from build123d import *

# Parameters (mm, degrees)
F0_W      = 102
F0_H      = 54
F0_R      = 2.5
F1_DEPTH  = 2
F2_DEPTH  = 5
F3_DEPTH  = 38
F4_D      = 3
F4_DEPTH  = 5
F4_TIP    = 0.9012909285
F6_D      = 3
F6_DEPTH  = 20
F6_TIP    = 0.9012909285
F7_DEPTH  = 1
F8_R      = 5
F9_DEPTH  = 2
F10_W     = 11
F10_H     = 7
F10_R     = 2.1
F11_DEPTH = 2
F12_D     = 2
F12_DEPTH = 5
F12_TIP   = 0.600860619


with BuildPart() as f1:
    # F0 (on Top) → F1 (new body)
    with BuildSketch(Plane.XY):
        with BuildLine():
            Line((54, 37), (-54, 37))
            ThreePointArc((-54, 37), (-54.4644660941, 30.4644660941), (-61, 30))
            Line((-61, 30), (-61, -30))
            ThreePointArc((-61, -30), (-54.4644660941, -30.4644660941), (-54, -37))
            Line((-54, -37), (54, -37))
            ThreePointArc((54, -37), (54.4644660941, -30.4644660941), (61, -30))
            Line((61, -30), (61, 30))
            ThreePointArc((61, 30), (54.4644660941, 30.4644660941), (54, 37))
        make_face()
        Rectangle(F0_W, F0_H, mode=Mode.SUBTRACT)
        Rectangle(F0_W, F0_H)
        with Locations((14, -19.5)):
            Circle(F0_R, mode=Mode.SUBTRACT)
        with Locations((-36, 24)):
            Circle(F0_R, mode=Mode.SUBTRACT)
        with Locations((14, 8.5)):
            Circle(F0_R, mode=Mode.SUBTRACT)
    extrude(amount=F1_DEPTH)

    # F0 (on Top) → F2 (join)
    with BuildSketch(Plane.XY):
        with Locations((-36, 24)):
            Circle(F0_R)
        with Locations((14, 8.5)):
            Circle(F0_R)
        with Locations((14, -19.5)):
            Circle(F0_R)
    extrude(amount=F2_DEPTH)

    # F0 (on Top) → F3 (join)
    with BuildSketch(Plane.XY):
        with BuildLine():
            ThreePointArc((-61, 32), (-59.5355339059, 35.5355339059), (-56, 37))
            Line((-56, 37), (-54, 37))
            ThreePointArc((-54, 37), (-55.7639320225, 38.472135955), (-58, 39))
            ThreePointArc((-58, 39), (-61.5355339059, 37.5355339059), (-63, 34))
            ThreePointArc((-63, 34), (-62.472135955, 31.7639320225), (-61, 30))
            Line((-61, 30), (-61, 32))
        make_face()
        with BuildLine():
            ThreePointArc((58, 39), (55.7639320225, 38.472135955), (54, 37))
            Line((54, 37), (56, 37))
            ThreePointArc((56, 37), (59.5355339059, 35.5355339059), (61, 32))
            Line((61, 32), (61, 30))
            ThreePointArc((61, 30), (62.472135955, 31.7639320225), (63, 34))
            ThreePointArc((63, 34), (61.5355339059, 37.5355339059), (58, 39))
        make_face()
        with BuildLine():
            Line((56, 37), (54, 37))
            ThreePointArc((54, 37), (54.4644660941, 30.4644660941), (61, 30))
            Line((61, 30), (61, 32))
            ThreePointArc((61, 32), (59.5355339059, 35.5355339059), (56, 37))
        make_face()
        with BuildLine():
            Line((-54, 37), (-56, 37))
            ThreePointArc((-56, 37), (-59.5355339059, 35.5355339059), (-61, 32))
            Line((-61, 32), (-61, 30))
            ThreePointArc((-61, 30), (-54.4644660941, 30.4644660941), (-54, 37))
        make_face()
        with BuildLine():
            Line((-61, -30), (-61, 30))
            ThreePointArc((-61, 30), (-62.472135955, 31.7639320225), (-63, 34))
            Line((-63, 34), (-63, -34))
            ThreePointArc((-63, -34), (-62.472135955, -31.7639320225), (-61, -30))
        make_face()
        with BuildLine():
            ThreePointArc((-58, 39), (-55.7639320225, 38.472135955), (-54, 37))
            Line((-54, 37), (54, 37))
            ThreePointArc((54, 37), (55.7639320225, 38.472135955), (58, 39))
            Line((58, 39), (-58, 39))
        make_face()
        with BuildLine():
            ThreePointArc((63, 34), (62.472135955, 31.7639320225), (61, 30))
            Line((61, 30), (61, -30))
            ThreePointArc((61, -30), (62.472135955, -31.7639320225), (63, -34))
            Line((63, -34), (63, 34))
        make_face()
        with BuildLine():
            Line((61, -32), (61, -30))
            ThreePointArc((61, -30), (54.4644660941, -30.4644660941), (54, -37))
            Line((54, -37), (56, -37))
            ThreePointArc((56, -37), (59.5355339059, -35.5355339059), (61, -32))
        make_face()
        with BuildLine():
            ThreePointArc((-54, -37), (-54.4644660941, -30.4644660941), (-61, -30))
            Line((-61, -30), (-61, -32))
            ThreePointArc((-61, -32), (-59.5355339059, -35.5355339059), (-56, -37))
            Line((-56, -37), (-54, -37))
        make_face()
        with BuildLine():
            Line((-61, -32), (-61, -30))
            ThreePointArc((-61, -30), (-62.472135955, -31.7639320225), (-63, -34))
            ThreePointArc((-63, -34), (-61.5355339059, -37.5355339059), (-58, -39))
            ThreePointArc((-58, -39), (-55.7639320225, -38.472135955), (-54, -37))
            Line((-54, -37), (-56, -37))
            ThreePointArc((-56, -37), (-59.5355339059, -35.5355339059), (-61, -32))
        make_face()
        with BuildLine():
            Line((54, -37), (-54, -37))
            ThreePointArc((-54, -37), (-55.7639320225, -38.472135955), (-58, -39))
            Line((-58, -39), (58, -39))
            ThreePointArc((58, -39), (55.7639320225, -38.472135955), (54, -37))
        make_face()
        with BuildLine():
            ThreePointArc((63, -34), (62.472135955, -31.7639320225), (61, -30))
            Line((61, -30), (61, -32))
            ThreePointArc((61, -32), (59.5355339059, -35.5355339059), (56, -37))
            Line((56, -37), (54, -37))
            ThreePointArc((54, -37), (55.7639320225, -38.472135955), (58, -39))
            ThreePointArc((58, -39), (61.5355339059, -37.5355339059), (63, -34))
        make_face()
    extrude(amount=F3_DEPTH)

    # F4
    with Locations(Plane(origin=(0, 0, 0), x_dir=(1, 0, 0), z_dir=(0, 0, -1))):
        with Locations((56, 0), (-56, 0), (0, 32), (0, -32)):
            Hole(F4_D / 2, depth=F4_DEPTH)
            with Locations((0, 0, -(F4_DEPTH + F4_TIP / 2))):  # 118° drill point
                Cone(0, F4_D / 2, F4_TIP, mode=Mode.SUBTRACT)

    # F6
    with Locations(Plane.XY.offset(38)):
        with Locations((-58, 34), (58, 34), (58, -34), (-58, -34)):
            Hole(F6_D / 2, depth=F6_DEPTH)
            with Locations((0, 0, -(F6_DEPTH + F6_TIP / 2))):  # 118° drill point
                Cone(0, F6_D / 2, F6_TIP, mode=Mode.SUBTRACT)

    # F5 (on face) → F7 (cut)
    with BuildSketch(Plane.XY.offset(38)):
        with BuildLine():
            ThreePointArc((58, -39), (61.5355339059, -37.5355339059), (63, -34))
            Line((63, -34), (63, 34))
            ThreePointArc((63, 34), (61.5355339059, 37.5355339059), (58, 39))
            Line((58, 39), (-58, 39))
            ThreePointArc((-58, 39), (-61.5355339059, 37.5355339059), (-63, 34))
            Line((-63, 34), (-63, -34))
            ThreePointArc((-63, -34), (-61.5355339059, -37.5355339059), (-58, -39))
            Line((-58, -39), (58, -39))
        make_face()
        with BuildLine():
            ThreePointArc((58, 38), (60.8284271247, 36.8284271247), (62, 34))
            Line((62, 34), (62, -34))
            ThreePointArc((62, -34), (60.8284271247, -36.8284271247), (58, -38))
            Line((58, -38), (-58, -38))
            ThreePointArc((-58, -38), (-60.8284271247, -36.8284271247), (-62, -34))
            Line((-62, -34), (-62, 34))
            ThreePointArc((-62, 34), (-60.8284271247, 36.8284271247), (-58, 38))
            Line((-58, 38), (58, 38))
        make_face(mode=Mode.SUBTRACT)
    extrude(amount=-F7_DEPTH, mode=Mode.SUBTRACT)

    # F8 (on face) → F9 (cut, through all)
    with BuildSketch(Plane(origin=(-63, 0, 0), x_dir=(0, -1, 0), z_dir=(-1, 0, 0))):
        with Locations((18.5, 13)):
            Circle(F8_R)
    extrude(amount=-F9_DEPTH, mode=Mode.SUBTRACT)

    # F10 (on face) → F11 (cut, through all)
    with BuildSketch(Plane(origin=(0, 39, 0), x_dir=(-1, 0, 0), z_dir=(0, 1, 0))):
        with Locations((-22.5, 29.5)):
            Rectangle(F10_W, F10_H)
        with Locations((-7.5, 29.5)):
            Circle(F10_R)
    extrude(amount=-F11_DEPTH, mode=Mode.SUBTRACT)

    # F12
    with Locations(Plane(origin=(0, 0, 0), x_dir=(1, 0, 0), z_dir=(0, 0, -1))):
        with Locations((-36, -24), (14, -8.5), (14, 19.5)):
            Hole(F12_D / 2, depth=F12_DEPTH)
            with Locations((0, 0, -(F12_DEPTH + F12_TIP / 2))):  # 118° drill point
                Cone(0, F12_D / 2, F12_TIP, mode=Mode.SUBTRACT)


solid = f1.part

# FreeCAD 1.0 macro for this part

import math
import FreeCAD as App
import Part
import Sketcher
Q = App.Units.Quantity

doc = App.newDocument("Part")
body = doc.addObject("PartDesign::Body", "Body")

sketch1 = doc.addObject("Sketcher::SketchObject", "Sketch")
body.addObject(sketch1)
sketch1.AttachmentSupport = (doc.XY_Plane, [""])
sketch1.MapMode = "FlatFace"
sketch1.addGeometry([
    Part.LineSegment(App.Vector(54, 37, 0), App.Vector(-54, 37, 0)),
    Part.ArcOfCircle(Part.Circle(App.Vector(-58, 34, 0), App.Vector(0, 0, 1), 5), math.radians(-127), math.radians(37)),
    Part.LineSegment(App.Vector(-61, 30, 0), App.Vector(-61, -30, 0)),
    Part.ArcOfCircle(Part.Circle(App.Vector(-58, -34, 0), App.Vector(0, 0, 1), 5), math.radians(-37), math.radians(127)),
    Part.LineSegment(App.Vector(-54, -37, 0), App.Vector(54, -37, 0)),
    Part.ArcOfCircle(Part.Circle(App.Vector(58, -34, 0), App.Vector(0, 0, 1), 5), math.radians(53), math.radians(217)),
    Part.LineSegment(App.Vector(61, -30, 0), App.Vector(61, 30, 0)),
    Part.ArcOfCircle(Part.Circle(App.Vector(58, 34, 0), App.Vector(0, 0, 1), 5), math.radians(143), math.radians(307)),
    Part.Circle(App.Vector(14, -19.5, 0), App.Vector(0, 0, 1), 2.5),
    Part.Circle(App.Vector(-36, 24, 0), App.Vector(0, 0, 1), 2.5),
    Part.Circle(App.Vector(14, 8.5, 0), App.Vector(0, 0, 1), 2.5),
], False)
sketch1.addConstraint([
    Sketcher.Constraint("Coincident", 0, 2, 1, 2),
    Sketcher.Constraint("Coincident", 1, 1, 2, 1),
    Sketcher.Constraint("Coincident", 2, 2, 3, 2),
    Sketcher.Constraint("Coincident", 3, 1, 4, 1),
    Sketcher.Constraint("Coincident", 4, 2, 5, 2),
    Sketcher.Constraint("Coincident", 5, 1, 6, 1),
    Sketcher.Constraint("Coincident", 6, 2, 7, 2),
    Sketcher.Constraint("Coincident", 7, 1, 0, 1),
    Sketcher.Constraint("Horizontal", 0),
    Sketcher.Constraint("Vertical", 2),
    Sketcher.Constraint("Horizontal", 4),
    Sketcher.Constraint("Vertical", 6),
    Sketcher.Constraint("Equal", 1, 3),
    Sketcher.Constraint("Equal", 3, 5),
    Sketcher.Constraint("Equal", 5, 7),
    Sketcher.Constraint("Equal", 8, 9),
    Sketcher.Constraint("Equal", 9, 10),
    Sketcher.Constraint("Symmetric", 1, 3, 5, 3, -1, 1),
    Sketcher.Constraint("Symmetric", 3, 3, 7, 3, -1, 1),
    Sketcher.Constraint("Symmetric", 3, 3, 5, 3, -2),
    Sketcher.Constraint("Horizontal", 2, 2, 5, 1),
    Sketcher.Constraint("Vertical", 8, 3, 10, 3),
    Sketcher.Constraint("Vertical", 0, 2, 3, 1),
    Sketcher.Constraint("Diameter", 8, Q("5 mm")),
    Sketcher.Constraint("Radius", 1, Q("5 mm")),
    Sketcher.Constraint("DistanceX", 0, 2, 0, 1, Q("108 mm")),
    Sketcher.Constraint("DistanceY", 2, 2, 2, 1, Q("60 mm")),
    Sketcher.Constraint("DistanceX", 1, 3, -1, 1, Q("58 mm")),
    Sketcher.Constraint("DistanceY", -1, 1, 1, 3, Q("34 mm")),
    Sketcher.Constraint("DistanceX", -1, 1, 8, 3, Q("14 mm")),
    Sketcher.Constraint("DistanceX", 9, 3, -1, 1, Q("36 mm")),
    Sketcher.Constraint("DistanceY", -1, 1, 9, 3, Q("24 mm")),
    Sketcher.Constraint("DistanceY", 8, 3, 10, 3, Q("28 mm")),
    Sketcher.Constraint("DistanceY", 8, 3, -1, 1, Q("19.5 mm")),
])
pad1 = doc.addObject("PartDesign::Pad", "Pad")
body.addObject(pad1)
pad1.Profile = sketch1
pad1.Length = 2

sketch2 = doc.addObject("Sketcher::SketchObject", "Sketch001")
body.addObject(sketch2)
sketch2.AttachmentSupport = (doc.XY_Plane, [""])
sketch2.MapMode = "FlatFace"
sketch2.addGeometry([
    Part.Circle(App.Vector(-36, 24, 0), App.Vector(0, 0, 1), 2.5),
    Part.Circle(App.Vector(14, 8.5, 0), App.Vector(0, 0, 1), 2.5),
    Part.Circle(App.Vector(14, -19.5, 0), App.Vector(0, 0, 1), 2.5),
], False)
sketch2.addConstraint([
    Sketcher.Constraint("Equal", 0, 1),
    Sketcher.Constraint("Equal", 1, 2),
    Sketcher.Constraint("Vertical", 1, 3, 2, 3),
    Sketcher.Constraint("Diameter", 0, Q("5 mm")),
    Sketcher.Constraint("DistanceX", 0, 3, -1, 1, Q("36 mm")),
    Sketcher.Constraint("DistanceY", -1, 1, 0, 3, Q("24 mm")),
    Sketcher.Constraint("DistanceX", -1, 1, 1, 3, Q("14 mm")),
    Sketcher.Constraint("DistanceY", 2, 3, 1, 3, Q("28 mm")),
    Sketcher.Constraint("DistanceY", -1, 1, 1, 3, Q("8.5 mm")),
])
pad2 = doc.addObject("PartDesign::Pad", "Pad001")
body.addObject(pad2)
pad2.Profile = sketch2
pad2.Length = 5

sketch3 = doc.addObject("Sketcher::SketchObject", "Sketch002")
body.addObject(sketch3)
sketch3.AttachmentSupport = (doc.XY_Plane, [""])
sketch3.MapMode = "FlatFace"
sketch3.addGeometry([
    Part.ArcOfCircle(Part.Circle(App.Vector(-58, 34, 0), App.Vector(0, 0, 1), 5), math.radians(90), math.radians(180)),
    Part.LineSegment(App.Vector(-63, 34, 0), App.Vector(-63, -34, 0)),
    Part.ArcOfCircle(Part.Circle(App.Vector(-58, -34, 0), App.Vector(0, 0, 1), 5), math.radians(180), math.radians(270)),
    Part.LineSegment(App.Vector(-58, -39, 0), App.Vector(58, -39, 0)),
    Part.ArcOfCircle(Part.Circle(App.Vector(58, -34, 0), App.Vector(0, 0, 1), 5), math.radians(-90), math.radians(0)),
    Part.LineSegment(App.Vector(63, -34, 0), App.Vector(63, 34, 0)),
    Part.ArcOfCircle(Part.Circle(App.Vector(58, 34, 0), App.Vector(0, 0, 1), 5), math.radians(0), math.radians(90)),
    Part.LineSegment(App.Vector(58, 39, 0), App.Vector(-58, 39, 0)),
    Part.LineSegment(App.Vector(54, -37, 0), App.Vector(-54, -37, 0)),
    Part.ArcOfCircle(Part.Circle(App.Vector(-58, -34, 0), App.Vector(0, 0, 1), 5), math.radians(-37), math.radians(127)),
    Part.LineSegment(App.Vector(-61, -30, 0), App.Vector(-61, 30, 0)),
    Part.ArcOfCircle(Part.Circle(App.Vector(-58, 34, 0), App.Vector(0, 0, 1), 5), math.radians(-127), math.radians(37)),
    Part.LineSegment(App.Vector(-54, 37, 0), App.Vector(54, 37, 0)),
    Part.ArcOfCircle(Part.Circle(App.Vector(58, 34, 0), App.Vector(0, 0, 1), 5), math.radians(143), math.radians(307)),
    Part.LineSegment(App.Vector(61, 30, 0), App.Vector(61, -30, 0)),
    Part.ArcOfCircle(Part.Circle(App.Vector(58, -34, 0), App.Vector(0, 0, 1), 5), math.radians(53), math.radians(217)),
], False)
sketch3.addConstraint([
    Sketcher.Constraint("Tangent", 0, 2, 1, 1),
    Sketcher.Constraint("Tangent", 1, 2, 2, 1),
    Sketcher.Constraint("Tangent", 2, 2, 3, 1),
    Sketcher.Constraint("Tangent", 3, 2, 4, 1),
    Sketcher.Constraint("Tangent", 4, 2, 5, 1),
    Sketcher.Constraint("Tangent", 5, 2, 6, 1),
    Sketcher.Constraint("Tangent", 6, 2, 7, 1),
    Sketcher.Constraint("Tangent", 7, 2, 0, 1),
    Sketcher.Constraint("Coincident", 8, 2, 9, 1),
    Sketcher.Constraint("Coincident", 9, 2, 10, 1),
    Sketcher.Constraint("Coincident", 10, 2, 11, 1),
    Sketcher.Constraint("Coincident", 11, 2, 12, 1),
    Sketcher.Constraint("Coincident", 12, 2, 13, 1),
    Sketcher.Constraint("Coincident", 13, 2, 14, 1),
    Sketcher.Constraint("Coincident", 14, 2, 15, 1),
    Sketcher.Constraint("Coincident", 15, 2, 8, 1),
    Sketcher.Constraint("Vertical", 1),
    Sketcher.Constraint("Horizontal", 3),
    Sketcher.Constraint("Vertical", 5),
    Sketcher.Constraint("Horizontal", 7),
    Sketcher.Constraint("Horizontal", 8),
    Sketcher.Constraint("Vertical", 10),
    Sketcher.Constraint("Horizontal", 12),
    Sketcher.Constraint("Vertical", 14),
    Sketcher.Constraint("Coincident", 9, 3, 2, 3),
    Sketcher.Constraint("Coincident", 11, 3, 0, 3),
    Sketcher.Constraint("Coincident", 13, 3, 6, 3),
    Sketcher.Constraint("Coincident", 15, 3, 4, 3),
    Sketcher.Constraint("Equal", 0, 2),
    Sketcher.Constraint("Equal", 2, 4),
    Sketcher.Constraint("Equal", 4, 6),
    Sketcher.Constraint("Equal", 6, 9),
    Sketcher.Constraint("Equal", 9, 11),
    Sketcher.Constraint("Equal", 11, 13),
    Sketcher.Constraint("Equal", 13, 15),
    Sketcher.Constraint("Symmetric", 0, 3, 4, 3, -1, 1),
    Sketcher.Constraint("Horizontal", 10, 2, 13, 2),
    Sketcher.Constraint("Vertical", 8, 2, 11, 2),
    Sketcher.Constraint("Radius", 0, Q("5 mm")),
    Sketcher.Constraint("DistanceX", 3, 1, 3, 2, Q("116 mm")),
    Sketcher.Constraint("DistanceX", 8, 2, 8, 1, Q("108 mm")),
    Sketcher.Constraint("DistanceY", 1, 2, 1, 1, Q("68 mm")),
    Sketcher.Constraint("DistanceY", 10, 1, 10, 2, Q("60 mm")),
])
pad3 = doc.addObject("PartDesign::Pad", "Pad002")
body.addObject(pad3)
pad3.Profile = sketch3
pad3.Length = 38

sketch4 = doc.addObject("Sketcher::SketchObject", "Sketch003")
body.addObject(sketch4)
sketch4.AttachmentSupport = (doc.XY_Plane, [""])
sketch4.MapMode = "FlatFace"
sketch4.addGeometry([
    Part.Circle(App.Vector(56, 0, 0), App.Vector(0, 0, 1), 1.5),
    Part.Circle(App.Vector(-56, 0, 0), App.Vector(0, 0, 1), 1.5),
    Part.Circle(App.Vector(0, -32, 0), App.Vector(0, 0, 1), 1.5),
    Part.Circle(App.Vector(0, 32, 0), App.Vector(0, 0, 1), 1.5),
], False)
sketch4.addConstraint([
    Sketcher.Constraint("Equal", 0, 1),
    Sketcher.Constraint("Equal", 1, 2),
    Sketcher.Constraint("Equal", 2, 3),
    Sketcher.Constraint("Symmetric", 0, 3, 1, 3, -1, 1),
    Sketcher.Constraint("Symmetric", 2, 3, 3, 3, -1, 1),
    Sketcher.Constraint("PointOnObject", 0, 3, -1),
    Sketcher.Constraint("PointOnObject", 2, 3, -2),
    Sketcher.Constraint("Diameter", 0, Q("3 mm")),
    Sketcher.Constraint("DistanceX", -1, 1, 0, 3, Q("56 mm")),
    Sketcher.Constraint("DistanceY", 2, 3, -1, 1, Q("32 mm")),
])
doc.recompute()
hole = doc.addObject("PartDesign::Hole", "Hole")
body.addObject(hole)
hole.Profile = sketch4
hole.ThreadType = "None"
hole.Diameter = 3
hole.DepthType = "Dimension"
hole.Depth = 5
hole.DrillPoint = "Angled"
hole.DrillPointAngle = 118
hole.Reversed = True

sketch5 = doc.addObject("Sketcher::SketchObject", "Sketch004")
body.addObject(sketch5)
sketch5.AttachmentSupport = (doc.XY_Plane, [""])
sketch5.MapMode = "FlatFace"
sketch5.AttachmentOffset = App.Placement(App.Vector(0, 0, 38), App.Rotation())
sketch5.addGeometry([
    Part.Circle(App.Vector(-58, 34, 0), App.Vector(0, 0, 1), 1.5),
    Part.Circle(App.Vector(58, 34, 0), App.Vector(0, 0, 1), 1.5),
    Part.Circle(App.Vector(58, -34, 0), App.Vector(0, 0, 1), 1.5),
    Part.Circle(App.Vector(-58, -34, 0), App.Vector(0, 0, 1), 1.5),
], False)
sketch5.addConstraint([
    Sketcher.Constraint("Equal", 0, 1),
    Sketcher.Constraint("Equal", 1, 2),
    Sketcher.Constraint("Equal", 2, 3),
    Sketcher.Constraint("Symmetric", 0, 3, 2, 3, -1, 1),
    Sketcher.Constraint("Symmetric", 1, 3, 3, 3, -1, 1),
    Sketcher.Constraint("Symmetric", 0, 3, 1, 3, -2),
    Sketcher.Constraint("Diameter", 0, Q("3 mm")),
    Sketcher.Constraint("DistanceX", 0, 3, -1, 1, Q("58 mm")),
    Sketcher.Constraint("DistanceY", -1, 1, 0, 3, Q("34 mm")),
])
doc.recompute()
hole2 = doc.addObject("PartDesign::Hole", "Hole001")
body.addObject(hole2)
hole2.Profile = sketch5
hole2.ThreadType = "None"
hole2.Diameter = 3
hole2.DepthType = "Dimension"
hole2.Depth = 20
hole2.DrillPoint = "Angled"
hole2.DrillPointAngle = 118

sketch6 = doc.addObject("Sketcher::SketchObject", "Sketch005")
body.addObject(sketch6)
sketch6.AttachmentSupport = (doc.XY_Plane, [""])
sketch6.MapMode = "FlatFace"
sketch6.AttachmentOffset = App.Placement(App.Vector(0, 0, 38), App.Rotation())
sketch6.addGeometry([
    Part.ArcOfCircle(Part.Circle(App.Vector(58, -34, 0), App.Vector(0, 0, 1), 5), math.radians(-90), math.radians(0)),
    Part.LineSegment(App.Vector(63, -34, 0), App.Vector(63, 34, 0)),
    Part.ArcOfCircle(Part.Circle(App.Vector(58, 34, 0), App.Vector(0, 0, 1), 5), math.radians(0), math.radians(90)),
    Part.LineSegment(App.Vector(58, 39, 0), App.Vector(-58, 39, 0)),
    Part.ArcOfCircle(Part.Circle(App.Vector(-58, 34, 0), App.Vector(0, 0, 1), 5), math.radians(90), math.radians(180)),
    Part.LineSegment(App.Vector(-63, 34, 0), App.Vector(-63, -34, 0)),
    Part.ArcOfCircle(Part.Circle(App.Vector(-58, -34, 0), App.Vector(0, 0, 1), 5), math.radians(180), math.radians(270)),
    Part.LineSegment(App.Vector(-58, -39, 0), App.Vector(58, -39, 0)),
    Part.LineSegment(App.Vector(-58, 38, 0), App.Vector(58, 38, 0)),
    Part.ArcOfCircle(Part.Circle(App.Vector(58, 34, 0), App.Vector(0, 0, 1), 4), math.radians(0), math.radians(90)),
    Part.LineSegment(App.Vector(62, 34, 0), App.Vector(62, -34, 0)),
    Part.ArcOfCircle(Part.Circle(App.Vector(58, -34, 0), App.Vector(0, 0, 1), 4), math.radians(-90), math.radians(0)),
    Part.LineSegment(App.Vector(58, -38, 0), App.Vector(-58, -38, 0)),
    Part.ArcOfCircle(Part.Circle(App.Vector(-58, -34, 0), App.Vector(0, 0, 1), 4), math.radians(180), math.radians(270)),
    Part.LineSegment(App.Vector(-62, -34, 0), App.Vector(-62, 34, 0)),
    Part.ArcOfCircle(Part.Circle(App.Vector(-58, 34, 0), App.Vector(0, 0, 1), 4), math.radians(90), math.radians(180)),
], False)
sketch6.addConstraint([
    Sketcher.Constraint("Tangent", 0, 2, 1, 1),
    Sketcher.Constraint("Tangent", 1, 2, 2, 1),
    Sketcher.Constraint("Tangent", 2, 2, 3, 1),
    Sketcher.Constraint("Tangent", 3, 2, 4, 1),
    Sketcher.Constraint("Tangent", 4, 2, 5, 1),
    Sketcher.Constraint("Tangent", 5, 2, 6, 1),
    Sketcher.Constraint("Tangent", 6, 2, 7, 1),
    Sketcher.Constraint("Tangent", 7, 2, 0, 1),
    Sketcher.Constraint("Tangent", 8, 2, 9, 2),
    Sketcher.Constraint("Tangent", 9, 1, 10, 1),
    Sketcher.Constraint("Tangent", 10, 2, 11, 2),
    Sketcher.Constraint("Tangent", 11, 1, 12, 1),
    Sketcher.Constraint("Tangent", 12, 2, 13, 2),
    Sketcher.Constraint("Tangent", 13, 1, 14, 1),
    Sketcher.Constraint("Tangent", 14, 2, 15, 2),
    Sketcher.Constraint("Tangent", 15, 1, 8, 1),
    Sketcher.Constraint("Vertical", 1),
    Sketcher.Constraint("Horizontal", 3),
    Sketcher.Constraint("Vertical", 5),
    Sketcher.Constraint("Horizontal", 7),
    Sketcher.Constraint("Horizontal", 8),
    Sketcher.Constraint("Vertical", 10),
    Sketcher.Constraint("Horizontal", 12),
    Sketcher.Constraint("Vertical", 14),
    Sketcher.Constraint("Coincident", 9, 3, 2, 3),
    Sketcher.Constraint("Coincident", 11, 3, 0, 3),
    Sketcher.Constraint("Coincident", 13, 3, 6, 3),
    Sketcher.Constraint("Equal", 0, 2),
    Sketcher.Constraint("Equal", 2, 4),
    Sketcher.Constraint("Equal", 4, 6),
    Sketcher.Constraint("Equal", 13, 15),
    Sketcher.Constraint("Symmetric", 0, 3, 4, 3, -1, 1),
    Sketcher.Constraint("Radius", 0, Q("5 mm")),
    Sketcher.Constraint("Radius", 9, Q("4 mm")),
    Sketcher.Constraint("DistanceX", 3, 2, 3, 1, Q("116 mm")),
    Sketcher.Constraint("DistanceY", 1, 1, 1, 2, Q("68 mm")),
])
pocket1 = doc.addObject("PartDesign::Pocket", "Pocket")
body.addObject(pocket1)
pocket1.Profile = sketch6
pocket1.Length = 1

sketch7 = doc.addObject("Sketcher::SketchObject", "Sketch006")
body.addObject(sketch7)
sketch7.AttachmentSupport = (doc.YZ_Plane, [""])
sketch7.MapMode = "FlatFace"
sketch7.AttachmentOffset = App.Placement(App.Vector(0, 0, -63), App.Rotation())
sketch7.addGeometry(Part.Circle(App.Vector(-18, 13, 0), App.Vector(0, 0, 1), 5), False)
sketch7.addConstraint([
    Sketcher.Constraint("Diameter", 0, Q("10 mm")),
    Sketcher.Constraint("DistanceY", -1, 1, 0, 3, Q("13 mm")),
    Sketcher.Constraint("DistanceX", 0, 3, -1, 1, Q("18.5 mm")),
])
pocket2 = doc.addObject("PartDesign::Pocket", "Pocket001")
body.addObject(pocket2)
pocket2.Profile = sketch7
pocket2.Length = 2
pocket2.Reversed = True

sketch8 = doc.addObject("Sketcher::SketchObject", "Sketch007")
body.addObject(sketch8)
sketch8.AttachmentSupport = (doc.XZ_Plane, [""])
sketch8.MapMode = "FlatFace"
sketch8.AttachmentOffset = App.Placement(App.Vector(0, 0, -39), App.Rotation())
sketch8.addGeometry([
    Part.LineSegment(App.Vector(28, 33, 0), App.Vector(28, 26, 0)),
    Part.LineSegment(App.Vector(28, 26, 0), App.Vector(17, 26, 0)),
    Part.LineSegment(App.Vector(17, 26, 0), App.Vector(17, 33, 0)),
    Part.LineSegment(App.Vector(17, 33, 0), App.Vector(28, 33, 0)),
    Part.Circle(App.Vector(7.5, 29.5, 0), App.Vector(0, 0, 1), 2.1),
], False)
sketch8.addConstraint([
    Sketcher.Constraint("Coincident", 0, 2, 1, 1),
    Sketcher.Constraint("Coincident", 1, 2, 2, 1),
    Sketcher.Constraint("Coincident", 2, 2, 3, 1),
    Sketcher.Constraint("Coincident", 3, 2, 0, 1),
    Sketcher.Constraint("Vertical", 0),
    Sketcher.Constraint("Horizontal", 1),
    Sketcher.Constraint("Vertical", 2),
    Sketcher.Constraint("Horizontal", 3),
    Sketcher.Constraint("Diameter", 4, Q("4.2 mm")),
    Sketcher.Constraint("DistanceX", 1, 2, 1, 1, Q("11 mm")),
    Sketcher.Constraint("DistanceY", 0, 2, 0, 1, Q("7 mm")),
    Sketcher.Constraint("DistanceX", -1, 1, 0, 2, Q("28 mm")),
    Sketcher.Constraint("DistanceY", -1, 1, 0, 2, Q("26 mm")),
    Sketcher.Constraint("DistanceX", -1, 1, 4, 3, Q("7.5 mm")),
    Sketcher.Constraint("DistanceY", -1, 1, 4, 3, Q("29.5 mm")),
])
pocket3 = doc.addObject("PartDesign::Pocket", "Pocket002")
body.addObject(pocket3)
pocket3.Profile = sketch8
pocket3.Length = 2
pocket3.Reversed = True

sketch9 = doc.addObject("Sketcher::SketchObject", "Sketch008")
body.addObject(sketch9)
sketch9.AttachmentSupport = (doc.XY_Plane, [""])
sketch9.MapMode = "FlatFace"
sketch9.addGeometry([
    Part.Circle(App.Vector(-36, 24, 0), App.Vector(0, 0, 1), 1),
    Part.Circle(App.Vector(14, 8.5, 0), App.Vector(0, 0, 1), 1),
    Part.Circle(App.Vector(14, -19.5, 0), App.Vector(0, 0, 1), 1),
], False)
sketch9.addConstraint([
    Sketcher.Constraint("Equal", 0, 1),
    Sketcher.Constraint("Equal", 1, 2),
    Sketcher.Constraint("Vertical", 1, 3, 2, 3),
    Sketcher.Constraint("Diameter", 0, Q("2 mm")),
    Sketcher.Constraint("DistanceX", 0, 3, -1, 1, Q("36 mm")),
    Sketcher.Constraint("DistanceY", -1, 1, 0, 3, Q("24 mm")),
    Sketcher.Constraint("DistanceX", -1, 1, 1, 3, Q("14 mm")),
    Sketcher.Constraint("DistanceY", 2, 3, 1, 3, Q("28 mm")),
    Sketcher.Constraint("DistanceY", -1, 1, 1, 3, Q("8.5 mm")),
])
doc.recompute()
hole3 = doc.addObject("PartDesign::Hole", "Hole002")
body.addObject(hole3)
hole3.Profile = sketch9
hole3.ThreadType = "None"
hole3.Diameter = 2
hole3.DepthType = "Dimension"
hole3.Depth = 5
hole3.DrillPoint = "Angled"
hole3.DrillPointAngle = 118
hole3.Reversed = True

doc.recompute()
